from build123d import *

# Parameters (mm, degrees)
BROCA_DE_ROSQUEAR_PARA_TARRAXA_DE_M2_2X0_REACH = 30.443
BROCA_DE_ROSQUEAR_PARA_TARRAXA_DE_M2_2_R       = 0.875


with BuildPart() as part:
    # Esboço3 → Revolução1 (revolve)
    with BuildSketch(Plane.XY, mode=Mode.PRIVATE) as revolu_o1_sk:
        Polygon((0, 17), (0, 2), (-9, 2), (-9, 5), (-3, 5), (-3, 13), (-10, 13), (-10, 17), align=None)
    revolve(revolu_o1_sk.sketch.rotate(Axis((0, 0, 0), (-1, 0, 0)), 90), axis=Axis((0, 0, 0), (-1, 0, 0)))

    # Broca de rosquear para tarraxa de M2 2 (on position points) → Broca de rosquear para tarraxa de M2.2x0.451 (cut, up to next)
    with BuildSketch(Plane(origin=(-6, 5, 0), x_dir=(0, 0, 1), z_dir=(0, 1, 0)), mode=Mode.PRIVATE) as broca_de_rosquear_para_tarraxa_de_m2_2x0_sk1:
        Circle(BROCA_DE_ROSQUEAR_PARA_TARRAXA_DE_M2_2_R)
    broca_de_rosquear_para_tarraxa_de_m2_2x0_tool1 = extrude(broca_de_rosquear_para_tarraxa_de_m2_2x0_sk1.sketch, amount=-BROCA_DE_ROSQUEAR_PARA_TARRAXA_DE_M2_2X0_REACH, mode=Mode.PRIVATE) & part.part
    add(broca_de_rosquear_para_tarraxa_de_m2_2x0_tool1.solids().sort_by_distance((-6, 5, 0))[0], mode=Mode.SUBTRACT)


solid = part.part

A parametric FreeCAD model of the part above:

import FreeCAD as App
import Part
import Sketcher
Q = App.Units.Quantity


def add_polygon(sketch, points):
    """Adds a closed chain of lines whose ends are joined by coincident constraints."""
    first, n = sketch.GeometryCount, len(points)
    for a, b in zip(points, points[1:] + points[:1]):
        sketch.addGeometry(Part.LineSegment(App.Vector(*a, 0), App.Vector(*b, 0)), False)
    for i in range(n):
        sketch.addConstraint(Sketcher.Constraint("Coincident", first + i, 2, first + (i + 1) % n, 1))

doc = App.newDocument("Part")
params = doc.addObject("Spreadsheet::Sheet", "Params")
for row, (alias, value) in enumerate([
    ("sketch1_width", "10 mm"),
    ("sketch1_width2", "7 mm"),
    ("sketch1_width3", "6 mm"),
    ("sketch1_height", "15 mm"),
    ("sketch1_height2", "4 mm"),
    ("revolution_angle", "360 deg"),
    ("sketch2_diameter", "1.75 mm"),
    ("pocket1_length", "3.201563 mm"),
], start=1):
    params.set(f"A{row}", alias)
    params.set(f"B{row}", "=" + value)
    params.setAlias(f"B{row}", alias)

body = doc.addObject("PartDesign::Body", "Body")

# Sketch on XY plane
sketch1 = body.newObject("Sketcher::SketchObject", "Sketch")
sketch1.AttachmentSupport = (doc.getObject("XY_Plane"), [""])
sketch1.MapMode = "FlatFace"
add_polygon(sketch1, [(0, 2), (0, 17), (-10, 17), (-10, 13), (-3, 13), (-3, 5), (-9, 5), (-9, 2)])  # lines 0-7
sketch1.addConstraint([
    Sketcher.Constraint("Vertical", 0),
    Sketcher.Constraint("Horizontal", 1),
    Sketcher.Constraint("Vertical", 2),
    Sketcher.Constraint("Horizontal", 3),
    Sketcher.Constraint("Vertical", 4),
    Sketcher.Constraint("Horizontal", 5),
    Sketcher.Constraint("Vertical", 6),
    Sketcher.Constraint("Horizontal", 7),
    Sketcher.Constraint("PointOnObject", 0, 2, -2),
    Sketcher.Constraint("DistanceX", 1, 2, 1, 1, Q("10 mm")),
    Sketcher.Constraint("DistanceX", 3, 1, 3, 2, Q("7 mm")),
    Sketcher.Constraint("DistanceX", 5, 2, 5, 1, Q("6 mm")),
    Sketcher.Constraint("DistanceY", 0, 1, 0, 2, Q("15 mm")),
    Sketcher.Constraint("DistanceY", 2, 2, 2, 1, Q("4 mm")),
    Sketcher.Constraint("DistanceY", 4, 2, 4, 1, Q("8 mm")),
    Sketcher.Constraint("DistanceY", -1, 1, 0, 2, Q("17 mm")),
])
sketch1.setExpression("Constraints[17]", "Params.sketch1_width")
sketch1.setExpression("Constraints[18]", "Params.sketch1_width2")
sketch1.setExpression("Constraints[19]", "Params.sketch1_width3")
sketch1.setExpression("Constraints[20]", "Params.sketch1_height")
sketch1.setExpression("Constraints[21]", "Params.sketch1_height2")
revolution = body.newObject("PartDesign::Revolution", "Revolution")
revolution.Profile = sketch1
revolution.ReferenceAxis = (sketch1, ["H_Axis"])
revolution.setExpression("Angle", "Params.revolution_angle")

# Sketch on XZ plane
sketch2 = body.newObject("Sketcher::SketchObject", "Sketch001")
sketch2.AttachmentSupport = (doc.getObject("XZ_Plane"), [""])
sketch2.MapMode = "FlatFace"
sketch2.AttachmentOffset = App.Placement(App.Vector(0, 0, -5), App.Rotation())
sketch2.addGeometry(Part.Circle(App.Vector(-6, 0, 0), App.Vector(0, 0, 1), 0.875), False)
sketch2.addConstraint([
    Sketcher.Constraint("PointOnObject", 0, 3, -1),
    Sketcher.Constraint("Diameter", 0, Q("1.75 mm")),
    Sketcher.Constraint("DistanceX", 0, 3, -1, 1, Q("6 mm")),
])
sketch2.setExpression("Constraints[1]", "Params.sketch2_diameter")
pocket1 = body.newObject("PartDesign::Pocket", "Pocket")
pocket1.Profile = sketch2
pocket1.setExpression("Length", "Params.pocket1_length")
pocket1.Reversed = True

doc.recompute()
